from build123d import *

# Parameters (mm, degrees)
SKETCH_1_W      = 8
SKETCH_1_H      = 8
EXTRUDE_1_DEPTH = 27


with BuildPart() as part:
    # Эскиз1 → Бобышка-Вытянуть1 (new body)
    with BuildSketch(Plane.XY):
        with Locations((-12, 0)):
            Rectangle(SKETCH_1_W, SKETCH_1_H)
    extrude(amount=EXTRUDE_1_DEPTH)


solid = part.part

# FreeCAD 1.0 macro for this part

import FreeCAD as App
import Part
import Sketcher

V = App.Vector
Q = App.Units.Quantity


def add_polygon(sketch, points):
    """Adds a closed chain of lines whose ends are joined by coincident constraints."""
    first, n = sketch.GeometryCount, len(points)
    for a, b in zip(points, points[1:] + points[:1]):
        sketch.addGeometry(Part.LineSegment(App.Vector(*a, 0), App.Vector(*b, 0)), False)
    for i in range(n):
        sketch.addConstraint(Sketcher.Constraint("Coincident", first + i, 2, first + (i + 1) % n, 1))

doc = App.newDocument("Part")
params = doc.addObject("Spreadsheet::Sheet", "Params")
for row, (alias, value) in enumerate([
    ("sketch1_width", "8 mm"),
    ("pad1_length", "27 mm"),
], start=1):
    params.set(f"A{row}", alias)
    params.set(f"B{row}", "=" + value)
    params.setAlias(f"B{row}", alias)

body = doc.addObject("PartDesign::Body", "Body")

# Sketch on XY plane
sketch1 = doc.addObject("Sketcher::SketchObject", "Sketch")
body.addObject(sketch1)
sketch1.AttachmentSupport = (doc.XY_Plane, [""])
sketch1.MapMode = "FlatFace"
add_polygon(sketch1, [(-16, 4), (-16, -4), (-8, -4), (-8, 4)])  # lines 0-3
sketch1.addConstraint([
    Sketcher.Constraint("Vertical", 0),
    Sketcher.Constraint("Horizontal", 1),
    Sketcher.Constraint("Vertical", 2),
    Sketcher.Constraint("Horizontal", 3),
    Sketcher.Constraint("Equal", 3, 0),
    Sketcher.Constraint("DistanceX", 1, 1, 1, 2, Q("8 mm")),
    Sketcher.Constraint("DistanceX", 0, 2, -1, 1, Q("16 mm")),
    Sketcher.Constraint("DistanceY", 0, 2, -1, 1, Q("4 mm")),
])
sketch1.setExpression("Constraints[9]", "Params.sketch1_width")
pad1 = doc.addObject("PartDesign::Pad", "Pad")
body.addObject(pad1)
pad1.Profile = sketch1
pad1.setExpression("Length", "Params.pad1_length")

doc.recompute()
